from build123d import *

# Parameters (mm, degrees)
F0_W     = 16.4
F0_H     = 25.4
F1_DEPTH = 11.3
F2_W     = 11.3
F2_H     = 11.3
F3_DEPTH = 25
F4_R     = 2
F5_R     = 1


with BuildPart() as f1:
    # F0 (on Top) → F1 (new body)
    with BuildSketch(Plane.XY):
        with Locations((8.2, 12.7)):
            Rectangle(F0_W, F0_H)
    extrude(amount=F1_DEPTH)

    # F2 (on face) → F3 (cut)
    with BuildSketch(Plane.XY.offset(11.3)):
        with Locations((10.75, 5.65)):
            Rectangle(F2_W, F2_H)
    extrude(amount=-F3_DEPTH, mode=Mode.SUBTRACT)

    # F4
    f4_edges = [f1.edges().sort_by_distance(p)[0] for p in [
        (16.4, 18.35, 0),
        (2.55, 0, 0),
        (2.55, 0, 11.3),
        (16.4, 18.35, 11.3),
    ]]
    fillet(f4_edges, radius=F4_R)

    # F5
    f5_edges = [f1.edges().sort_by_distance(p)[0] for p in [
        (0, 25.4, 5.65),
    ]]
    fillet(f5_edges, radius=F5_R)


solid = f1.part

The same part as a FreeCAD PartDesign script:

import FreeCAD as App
import Part
import Sketcher
from FreeCAD import Vector


def edges_at(feature, points):
    """Names of the edges that pass closest to the given points."""
    edges = feature.Shape.Edges
    near = lambda p: min(range(len(edges)), key=lambda i: edges[i].distToShape(Part.Vertex(*p))[0])
    return sorted({f"Edge{near(p) + 1}" for p in points})


def add_polygon(sketch, points):
    """Adds a closed chain of lines whose ends are joined by coincident constraints."""
    first, n = sketch.GeometryCount, len(points)
    for a, b in zip(points, points[1:] + points[:1]):
        sketch.addGeometry(Part.LineSegment(App.Vector(*a, 0), App.Vector(*b, 0)), False)
    for i in range(n):
        sketch.addConstraint(Sketcher.Constraint("Coincident", first + i, 2, first + (i + 1) % n, 1))

doc = App.newDocument("Part")
body = doc.addObject("PartDesign::Body", "Body")

sketch1 = body.newObject("Sketcher::SketchObject", "Sketch")
sketch1.AttachmentSupport = (doc.getObject("XY_Plane"), [""])
sketch1.MapMode = "FlatFace"
add_polygon(sketch1, [(0, 25), (0, 0), (16, 0), (16, 25)])
sketch1.addConstraint(Sketcher.Constraint("Vertical", 0))
sketch1.addConstraint(Sketcher.Constraint("Horizontal", 1))
sketch1.addConstraint(Sketcher.Constraint("Vertical", 2))
sketch1.addConstraint(Sketcher.Constraint("Horizontal", 3))
sketch1.addConstraint(Sketcher.Constraint("Coincident", 0, 2, -1, 1))
sketch1.addConstraint(Sketcher.Constraint("DistanceX", 1, 1, 1, 2, 16.4))
sketch1.addConstraint(Sketcher.Constraint("DistanceY", 0, 2, 0, 1, 25.4))
pad1 = body.newObject("PartDesign::Pad", "Pad")
pad1.Profile = sketch1
pad1.Length = 11.3

sketch2 = body.newObject("Sketcher::SketchObject", "Sketch001")
sketch2.AttachmentSupport = (doc.getObject("XY_Plane"), [""])
sketch2.MapMode = "FlatFace"
sketch2.AttachmentOffset = App.Placement(Vector(0, 0, 11.3), App.Rotation())
add_polygon(sketch2, [(5, 11), (5, 0), (16, 0), (16, 11)])
sketch2.addConstraint(Sketcher.Constraint("Vertical", 0))
sketch2.addConstraint(Sketcher.Constraint("Horizontal", 1))
sketch2.addConstraint(Sketcher.Constraint("Vertical", 2))
sketch2.addConstraint(Sketcher.Constraint("Horizontal", 3))
sketch2.addConstraint(Sketcher.Constraint("PointOnObject", 0, 2, -1))
sketch2.addConstraint(Sketcher.Constraint("Equal", 3, 0))
sketch2.addConstraint(Sketcher.Constraint("DistanceX", 1, 1, 1, 2, 11.3))
sketch2.addConstraint(Sketcher.Constraint("DistanceX", -1, 1, 0, 2, 5.1))
pocket1 = body.newObject("PartDesign::Pocket", "Pocket")
pocket1.Profile = sketch2
pocket1.Length = 25
doc.recompute()

fillet = body.newObject("PartDesign::Fillet", "Fillet")
fillet.Base = (pocket1, edges_at(pocket1, [
    (16.4, 18.35, 0),
    (2.55, 0, 0),
    (2.55, 0, 11.3),
    (16.4, 18.35, 11.3),
]))
fillet.Radius = 2
doc.recompute()

fillet2 = body.newObject("PartDesign::Fillet", "Fillet001")
fillet2.Base = (fillet, edges_at(fillet, [(0, 25.4, 5.65)]))
fillet2.Radius = 1

doc.recompute()
